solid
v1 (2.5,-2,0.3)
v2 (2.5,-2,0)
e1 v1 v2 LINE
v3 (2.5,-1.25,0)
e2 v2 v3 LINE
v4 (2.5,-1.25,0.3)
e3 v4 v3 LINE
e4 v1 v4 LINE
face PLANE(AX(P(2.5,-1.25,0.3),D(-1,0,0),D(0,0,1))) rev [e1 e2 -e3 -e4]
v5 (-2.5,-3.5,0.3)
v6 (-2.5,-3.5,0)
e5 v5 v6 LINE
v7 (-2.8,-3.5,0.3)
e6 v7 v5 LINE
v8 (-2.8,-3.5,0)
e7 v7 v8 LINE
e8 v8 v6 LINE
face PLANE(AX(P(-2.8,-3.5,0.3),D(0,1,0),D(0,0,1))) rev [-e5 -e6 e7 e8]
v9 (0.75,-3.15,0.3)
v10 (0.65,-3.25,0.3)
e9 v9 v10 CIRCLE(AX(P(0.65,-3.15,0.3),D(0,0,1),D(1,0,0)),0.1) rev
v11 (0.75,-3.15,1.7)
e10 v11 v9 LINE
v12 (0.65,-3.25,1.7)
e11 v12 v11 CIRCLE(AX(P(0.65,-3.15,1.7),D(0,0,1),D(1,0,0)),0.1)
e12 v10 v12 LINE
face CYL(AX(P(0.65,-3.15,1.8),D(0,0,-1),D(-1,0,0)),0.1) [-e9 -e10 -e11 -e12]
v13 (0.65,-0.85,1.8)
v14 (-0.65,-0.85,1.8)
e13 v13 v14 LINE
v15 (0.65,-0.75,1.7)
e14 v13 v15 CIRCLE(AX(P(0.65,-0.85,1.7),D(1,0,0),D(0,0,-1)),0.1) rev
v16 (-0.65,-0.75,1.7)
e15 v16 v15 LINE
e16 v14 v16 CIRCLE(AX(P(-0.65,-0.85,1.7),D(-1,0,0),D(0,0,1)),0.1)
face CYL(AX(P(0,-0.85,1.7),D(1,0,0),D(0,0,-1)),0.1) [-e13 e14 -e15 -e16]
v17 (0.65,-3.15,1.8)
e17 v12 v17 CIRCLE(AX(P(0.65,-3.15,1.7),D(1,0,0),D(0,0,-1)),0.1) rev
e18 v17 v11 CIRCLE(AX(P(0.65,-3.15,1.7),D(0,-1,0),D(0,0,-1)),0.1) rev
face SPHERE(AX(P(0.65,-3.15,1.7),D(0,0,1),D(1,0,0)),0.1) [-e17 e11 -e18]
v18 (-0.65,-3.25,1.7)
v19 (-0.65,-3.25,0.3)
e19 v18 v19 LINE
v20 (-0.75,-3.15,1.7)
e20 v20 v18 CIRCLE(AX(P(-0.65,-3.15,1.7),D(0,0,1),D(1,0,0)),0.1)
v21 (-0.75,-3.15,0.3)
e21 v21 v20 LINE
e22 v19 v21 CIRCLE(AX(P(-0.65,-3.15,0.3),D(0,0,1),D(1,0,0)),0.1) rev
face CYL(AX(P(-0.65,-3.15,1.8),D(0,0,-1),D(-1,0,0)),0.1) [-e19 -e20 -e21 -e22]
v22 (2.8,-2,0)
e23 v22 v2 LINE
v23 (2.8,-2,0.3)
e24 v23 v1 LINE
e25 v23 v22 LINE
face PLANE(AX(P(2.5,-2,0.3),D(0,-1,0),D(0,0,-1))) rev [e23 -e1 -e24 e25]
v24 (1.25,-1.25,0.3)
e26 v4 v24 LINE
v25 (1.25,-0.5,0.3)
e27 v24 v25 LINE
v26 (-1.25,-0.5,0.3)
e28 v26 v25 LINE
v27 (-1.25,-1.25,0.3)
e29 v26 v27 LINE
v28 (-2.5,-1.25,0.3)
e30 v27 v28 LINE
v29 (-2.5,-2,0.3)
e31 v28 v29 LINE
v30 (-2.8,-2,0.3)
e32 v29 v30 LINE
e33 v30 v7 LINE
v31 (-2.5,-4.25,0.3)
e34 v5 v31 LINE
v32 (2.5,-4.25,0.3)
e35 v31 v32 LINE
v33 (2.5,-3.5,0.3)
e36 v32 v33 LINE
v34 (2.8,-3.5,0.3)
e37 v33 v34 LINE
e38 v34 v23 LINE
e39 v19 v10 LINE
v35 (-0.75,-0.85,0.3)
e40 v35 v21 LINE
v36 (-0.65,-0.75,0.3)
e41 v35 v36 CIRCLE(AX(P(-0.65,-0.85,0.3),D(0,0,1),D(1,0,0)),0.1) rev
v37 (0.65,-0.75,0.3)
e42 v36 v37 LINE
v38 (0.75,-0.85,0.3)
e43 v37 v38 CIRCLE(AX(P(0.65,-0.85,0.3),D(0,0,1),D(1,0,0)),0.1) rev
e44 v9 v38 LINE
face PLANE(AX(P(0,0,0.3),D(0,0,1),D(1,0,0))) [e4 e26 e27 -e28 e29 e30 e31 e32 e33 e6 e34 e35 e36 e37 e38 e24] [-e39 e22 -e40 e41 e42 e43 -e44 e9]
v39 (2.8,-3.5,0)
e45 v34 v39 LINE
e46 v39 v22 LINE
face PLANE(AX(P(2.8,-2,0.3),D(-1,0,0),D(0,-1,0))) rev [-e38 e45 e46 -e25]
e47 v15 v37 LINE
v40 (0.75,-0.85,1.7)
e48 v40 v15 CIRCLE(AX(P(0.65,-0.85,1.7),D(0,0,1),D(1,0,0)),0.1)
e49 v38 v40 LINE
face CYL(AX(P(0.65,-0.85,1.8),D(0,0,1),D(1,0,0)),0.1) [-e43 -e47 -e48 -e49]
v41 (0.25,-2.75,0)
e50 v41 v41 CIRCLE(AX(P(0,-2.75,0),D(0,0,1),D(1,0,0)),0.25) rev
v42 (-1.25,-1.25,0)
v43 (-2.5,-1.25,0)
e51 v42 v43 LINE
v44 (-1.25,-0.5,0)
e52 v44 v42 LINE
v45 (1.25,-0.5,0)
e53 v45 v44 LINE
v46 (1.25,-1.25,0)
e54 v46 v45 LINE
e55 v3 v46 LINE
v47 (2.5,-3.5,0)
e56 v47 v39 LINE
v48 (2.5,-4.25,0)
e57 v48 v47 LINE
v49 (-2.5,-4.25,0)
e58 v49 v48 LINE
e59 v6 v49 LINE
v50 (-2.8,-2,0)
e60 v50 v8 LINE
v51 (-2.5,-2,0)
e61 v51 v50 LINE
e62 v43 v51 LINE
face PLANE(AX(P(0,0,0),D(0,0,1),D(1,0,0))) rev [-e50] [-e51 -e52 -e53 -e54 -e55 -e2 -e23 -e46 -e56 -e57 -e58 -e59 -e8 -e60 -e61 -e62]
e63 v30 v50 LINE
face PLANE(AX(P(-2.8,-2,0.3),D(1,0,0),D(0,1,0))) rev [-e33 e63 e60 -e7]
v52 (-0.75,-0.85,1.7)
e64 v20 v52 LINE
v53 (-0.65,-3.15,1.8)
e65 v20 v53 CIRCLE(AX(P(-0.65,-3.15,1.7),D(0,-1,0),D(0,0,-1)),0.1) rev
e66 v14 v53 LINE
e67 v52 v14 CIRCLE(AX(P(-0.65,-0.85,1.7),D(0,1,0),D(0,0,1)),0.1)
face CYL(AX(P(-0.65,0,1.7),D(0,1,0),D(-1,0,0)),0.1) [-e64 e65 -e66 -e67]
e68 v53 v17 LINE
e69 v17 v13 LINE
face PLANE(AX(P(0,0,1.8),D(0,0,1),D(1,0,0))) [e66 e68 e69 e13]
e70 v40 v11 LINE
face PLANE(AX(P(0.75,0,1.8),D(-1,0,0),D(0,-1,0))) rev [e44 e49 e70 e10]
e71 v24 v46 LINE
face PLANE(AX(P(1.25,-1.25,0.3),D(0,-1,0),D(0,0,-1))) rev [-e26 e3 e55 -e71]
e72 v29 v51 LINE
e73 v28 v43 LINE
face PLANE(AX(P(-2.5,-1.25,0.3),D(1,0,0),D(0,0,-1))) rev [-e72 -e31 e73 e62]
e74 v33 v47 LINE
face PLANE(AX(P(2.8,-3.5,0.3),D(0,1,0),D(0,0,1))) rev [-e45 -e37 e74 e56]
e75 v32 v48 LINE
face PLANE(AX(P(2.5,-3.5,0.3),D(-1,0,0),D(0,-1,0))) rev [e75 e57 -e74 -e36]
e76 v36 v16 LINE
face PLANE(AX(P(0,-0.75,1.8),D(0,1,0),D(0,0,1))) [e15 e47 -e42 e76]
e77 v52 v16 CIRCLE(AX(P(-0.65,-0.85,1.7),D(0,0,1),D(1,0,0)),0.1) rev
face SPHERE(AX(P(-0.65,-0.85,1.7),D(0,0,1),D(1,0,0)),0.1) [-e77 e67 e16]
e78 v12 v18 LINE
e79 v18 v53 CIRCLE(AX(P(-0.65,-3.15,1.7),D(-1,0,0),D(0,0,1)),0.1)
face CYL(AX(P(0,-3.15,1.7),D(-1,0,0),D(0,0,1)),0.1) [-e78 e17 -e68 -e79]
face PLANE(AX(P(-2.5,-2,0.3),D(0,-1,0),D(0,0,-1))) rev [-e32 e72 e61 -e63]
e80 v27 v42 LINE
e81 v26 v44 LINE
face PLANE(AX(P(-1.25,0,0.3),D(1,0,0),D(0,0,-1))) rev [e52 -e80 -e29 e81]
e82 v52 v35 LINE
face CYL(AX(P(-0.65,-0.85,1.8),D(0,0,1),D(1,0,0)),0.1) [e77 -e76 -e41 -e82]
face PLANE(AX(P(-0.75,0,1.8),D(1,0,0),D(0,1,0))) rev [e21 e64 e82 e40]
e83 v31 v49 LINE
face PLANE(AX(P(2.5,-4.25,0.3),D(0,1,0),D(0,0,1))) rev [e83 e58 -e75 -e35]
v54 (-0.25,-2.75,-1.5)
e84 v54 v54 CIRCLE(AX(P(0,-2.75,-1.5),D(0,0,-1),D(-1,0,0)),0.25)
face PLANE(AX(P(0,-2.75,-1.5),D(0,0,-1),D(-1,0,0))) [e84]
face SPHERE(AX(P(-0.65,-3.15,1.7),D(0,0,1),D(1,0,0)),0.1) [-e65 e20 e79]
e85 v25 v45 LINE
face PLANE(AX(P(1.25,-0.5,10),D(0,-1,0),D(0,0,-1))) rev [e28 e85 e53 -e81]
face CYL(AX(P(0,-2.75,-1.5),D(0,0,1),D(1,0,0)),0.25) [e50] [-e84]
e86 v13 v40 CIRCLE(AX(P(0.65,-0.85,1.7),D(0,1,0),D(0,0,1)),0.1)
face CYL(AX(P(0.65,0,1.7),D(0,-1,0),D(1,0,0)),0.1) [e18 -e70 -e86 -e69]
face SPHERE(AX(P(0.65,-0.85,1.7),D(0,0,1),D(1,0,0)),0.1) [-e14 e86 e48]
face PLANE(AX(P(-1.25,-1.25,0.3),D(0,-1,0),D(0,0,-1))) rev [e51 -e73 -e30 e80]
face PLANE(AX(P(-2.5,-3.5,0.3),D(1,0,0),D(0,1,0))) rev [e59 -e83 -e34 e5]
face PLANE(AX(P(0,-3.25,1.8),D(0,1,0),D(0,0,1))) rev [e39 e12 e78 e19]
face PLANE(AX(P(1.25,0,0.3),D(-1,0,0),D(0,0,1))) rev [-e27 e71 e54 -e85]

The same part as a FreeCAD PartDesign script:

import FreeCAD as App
import Part
import Sketcher

V = App.Vector
Q = App.Units.Quantity


def edges_at(feature, points):
    """Names of the edges that pass closest to the given points."""
    edges = feature.Shape.Edges
    near = lambda p: min(range(len(edges)), key=lambda i: edges[i].distToShape(Part.Vertex(*p))[0])
    return sorted({f"Edge{near(p) + 1}" for p in points})

doc = App.newDocument("Part")
body = doc.addObject("PartDesign::Body", "Body")

# Sketch on XY plane
sketch1 = body.newObject("Sketcher::SketchObject", "Sketch")
sketch1.AttachmentSupport = (doc.getObject("XY_Plane"), [""])
sketch1.MapMode = "FlatFace"
sketch1.addGeometry([
    Part.LineSegment(V(1.25, 0, 0), V(-1.25, 0, 0)),  # 0
    Part.LineSegment(V(-1.25, 0, 0), V(-1.25, -1.25, 0)),  # 1
    Part.LineSegment(V(-1.25, -1.25, 0), V(-2.5, -1.25, 0)),  # 2
    Part.LineSegment(V(-2.5, -1.25, 0), V(-2.5, -2, 0)),  # 3
    Part.LineSegment(V(-2.5, -2, 0), V(-2.8, -2, 0)),  # 4
    Part.LineSegment(V(-2.8, -2, 0), V(-2.8, -3.5, 0)),  # 5
    Part.LineSegment(V(-2.8, -3.5, 0), V(-2.5, -3.5, 0)),  # 6
    Part.LineSegment(V(-2.5, -3.5, 0), V(-2.5, -4.25, 0)),  # 7
    Part.LineSegment(V(-2.5, -4.25, 0), V(2.5, -4.25, 0)),  # 8
    Part.LineSegment(V(2.5, -4.25, 0), V(2.5, -3.5, 0)),  # 9
    Part.LineSegment(V(2.5, -3.5, 0), V(2.8, -3.5, 0)),  # 10
    Part.LineSegment(V(2.8, -3.5, 0), V(2.8, -2, 0)),  # 11
    Part.LineSegment(V(2.8, -2, 0), V(2.5, -2, 0)),  # 12
    Part.LineSegment(V(2.5, -2, 0), V(2.5, -1.25, 0)),  # 13
    Part.LineSegment(V(2.5, -1.25, 0), V(1.25, -1.25, 0)),  # 14
    Part.LineSegment(V(1.25, -1.25, 0), V(1.25, 0, 0)),  # 15
], False)
sketch1.addConstraint([
    Sketcher.Constraint("Coincident", 0, 2, 1, 1),
    Sketcher.Constraint("Coincident", 1, 2, 2, 1),
    Sketcher.Constraint("Coincident", 2, 2, 3, 1),
    Sketcher.Constraint("Coincident", 3, 2, 4, 1),
    Sketcher.Constraint("Coincident", 4, 2, 5, 1),
    Sketcher.Constraint("Coincident", 5, 2, 6, 1),
    Sketcher.Constraint("Coincident", 6, 2, 7, 1),
    Sketcher.Constraint("Coincident", 7, 2, 8, 1),
    Sketcher.Constraint("Coincident", 8, 2, 9, 1),
    Sketcher.Constraint("Coincident", 9, 2, 10, 1),
    Sketcher.Constraint("Coincident", 10, 2, 11, 1),
    Sketcher.Constraint("Coincident", 11, 2, 12, 1),
    Sketcher.Constraint("Coincident", 12, 2, 13, 1),
    Sketcher.Constraint("Coincident", 13, 2, 14, 1),
    Sketcher.Constraint("Coincident", 14, 2, 15, 1),
    Sketcher.Constraint("Coincident", 15, 2, 0, 1),
    Sketcher.Constraint("Horizontal", 0),
    Sketcher.Constraint("Vertical", 1),
    Sketcher.Constraint("Horizontal", 2),
    Sketcher.Constraint("Vertical", 3),
    Sketcher.Constraint("Horizontal", 4),
    Sketcher.Constraint("Vertical", 5),
    Sketcher.Constraint("Horizontal", 6),
    Sketcher.Constraint("Vertical", 7),
    Sketcher.Constraint("Horizontal", 8),
    Sketcher.Constraint("Vertical", 9),
    Sketcher.Constraint("Horizontal", 10),
    Sketcher.Constraint("Vertical", 11),
    Sketcher.Constraint("Horizontal", 12),
    Sketcher.Constraint("Vertical", 13),
    Sketcher.Constraint("Horizontal", 14),
    Sketcher.Constraint("Vertical", 15),
    Sketcher.Constraint("Symmetric", 0, 2, 15, 2, -1, 1),
    Sketcher.Constraint("Symmetric", 6, 2, 9, 2, -2),
    Sketcher.Constraint("Symmetric", 4, 2, 11, 2, -2),
    Sketcher.Constraint("Symmetric", 2, 2, 13, 2, -2),
    Sketcher.Constraint("Vertical", 3, 2, 6, 2),
    Sketcher.Constraint("Equal", 14, 1),
    Sketcher.Constraint("Equal", 3, 7),
    Sketcher.Constraint("DistanceX", 8, 1, 8, 2, Q("5 mm")),
    Sketcher.Constraint("DistanceX", 0, 2, 0, 1, Q("2.5 mm")),
    Sketcher.Constraint("DistanceX", 4, 2, 4, 1, Q("0.3 mm")),
    Sketcher.Constraint("DistanceY", 5, 2, 5, 1, Q("1.5 mm")),
    Sketcher.Constraint("DistanceY", 3, 2, -1, 1, Q("2 mm")),
])
pad1 = body.newObject("PartDesign::Pad", "Pad")
pad1.Profile = sketch1
pad1.Length = 0.3

# Sketch on XY plane
sketch2 = body.newObject("Sketcher::SketchObject", "Sketch001")
sketch2.AttachmentSupport = (doc.getObject("XY_Plane"), [""])
sketch2.MapMode = "FlatFace"
sketch2.AttachmentOffset = App.Placement(V(0, 0, 0.3), App.Rotation())
sketch2.addGeometry([
    Part.LineSegment(V(-0.8, -3.2, 0), V(0.8, -3.2, 0)),
    Part.LineSegment(V(0.8, -3.2, 0), V(0.8, -0.8, 0)),
    Part.LineSegment(V(0.8, -0.8, 0), V(-0.8, -0.8, 0)),
    Part.LineSegment(V(-0.8, -0.8, 0), V(-0.8, -3.2, 0)),
], False)
sketch2.addConstraint([
    Sketcher.Constraint("Coincident", 0, 2, 1, 1),
    Sketcher.Constraint("Coincident", 1, 2, 2, 1),
    Sketcher.Constraint("Coincident", 2, 2, 3, 1),
    Sketcher.Constraint("Coincident", 3, 2, 0, 1),
    Sketcher.Constraint("Horizontal", 0),
    Sketcher.Constraint("Vertical", 1),
    Sketcher.Constraint("Horizontal", 2),
    Sketcher.Constraint("Vertical", 3),
    Sketcher.Constraint("DistanceX", 0, 1, 0, 2, Q("1.5 mm")),
    Sketcher.Constraint("DistanceY", 1, 1, 1, 2, Q("2.5 mm")),
    Sketcher.Constraint("DistanceX", -1, 1, 0, 2, Q("0.75 mm")),
    Sketcher.Constraint("DistanceY", 0, 2, -1, 1, Q("3.25 mm")),
])
pad2 = body.newObject("PartDesign::Pad", "Pad001")
pad2.Profile = sketch2
pad2.Length = 1.5
doc.recompute()

fillet = body.newObject("PartDesign::Fillet", "Fillet")
fillet.Base = (pad2, edges_at(pad2, [
    (-0.75, -3.25, 1.05),
    (0.75, -3.25, 1.05),
    (0, -0.75, 1.8),
    (0.75, -0.75, 1.05),
    (-0.75, -0.75, 1.05),
    (0, -3.25, 1.8),
    (0.75, -2, 1.8),
    (-0.75, -2, 1.8),
]))
fillet.Radius = 0.1

# Sketch on XY plane
sketch3 = body.newObject("Sketcher::SketchObject", "Sketch002")
sketch3.AttachmentSupport = (doc.getObject("XY_Plane"), [""])
sketch3.MapMode = "FlatFace"
sketch3.addGeometry(Part.Circle(V(0, -2.75, 0), V(0, 0, 1), 0.25), False)
sketch3.addConstraint([
    Sketcher.Constraint("PointOnObject", 0, 3, -2),
    Sketcher.Constraint("Diameter", 0, Q("0.5 mm")),
    Sketcher.Constraint("DistanceY", 0, 3, -1, 1, Q("2.75 mm")),
])
pad3 = body.newObject("PartDesign::Pad", "Pad002")
pad3.Profile = sketch3
pad3.Length = 1.5
pad3.Reversed = True

# Sketch on XY plane
sketch4 = body.newObject("Sketcher::SketchObject", "Sketch003")
sketch4.AttachmentSupport = (doc.getObject("XY_Plane"), [""])
sketch4.MapMode = "FlatFace"
sketch4.addGeometry([
    Part.LineSegment(V(1.2, 0, 0), V(1.2, -0.5, 0)),
    Part.LineSegment(V(1.2, -0.5, 0), V(-1.2, -0.5, 0)),
    Part.LineSegment(V(-1.2, -0.5, 0), V(-1.2, 0, 0)),
    Part.LineSegment(V(-1.2, 0, 0), V(1.2, 0, 0)),
], False)
sketch4.addConstraint([
    Sketcher.Constraint("Coincident", 0, 2, 1, 1),
    Sketcher.Constraint("Coincident", 1, 2, 2, 1),
    Sketcher.Constraint("Coincident", 2, 2, 3, 1),
    Sketcher.Constraint("Coincident", 3, 2, 0, 1),
    Sketcher.Constraint("Vertical", 0),
    Sketcher.Constraint("Horizontal", 1),
    Sketcher.Constraint("Vertical", 2),
    Sketcher.Constraint("Horizontal", 3),
    Sketcher.Constraint("Symmetric", 2, 2, 3, 2, -1, 1),
    Sketcher.Constraint("DistanceX", 1, 2, 1, 1, Q("2.5 mm")),
    Sketcher.Constraint("DistanceY", 0, 2, 0, 1, Q("0.5 mm")),
])
pocket1 = body.newObject("PartDesign::Pocket", "Pocket")
pocket1.Profile = sketch4
pocket1.Length = 10
pocket1.Reversed = True

doc.recompute()
